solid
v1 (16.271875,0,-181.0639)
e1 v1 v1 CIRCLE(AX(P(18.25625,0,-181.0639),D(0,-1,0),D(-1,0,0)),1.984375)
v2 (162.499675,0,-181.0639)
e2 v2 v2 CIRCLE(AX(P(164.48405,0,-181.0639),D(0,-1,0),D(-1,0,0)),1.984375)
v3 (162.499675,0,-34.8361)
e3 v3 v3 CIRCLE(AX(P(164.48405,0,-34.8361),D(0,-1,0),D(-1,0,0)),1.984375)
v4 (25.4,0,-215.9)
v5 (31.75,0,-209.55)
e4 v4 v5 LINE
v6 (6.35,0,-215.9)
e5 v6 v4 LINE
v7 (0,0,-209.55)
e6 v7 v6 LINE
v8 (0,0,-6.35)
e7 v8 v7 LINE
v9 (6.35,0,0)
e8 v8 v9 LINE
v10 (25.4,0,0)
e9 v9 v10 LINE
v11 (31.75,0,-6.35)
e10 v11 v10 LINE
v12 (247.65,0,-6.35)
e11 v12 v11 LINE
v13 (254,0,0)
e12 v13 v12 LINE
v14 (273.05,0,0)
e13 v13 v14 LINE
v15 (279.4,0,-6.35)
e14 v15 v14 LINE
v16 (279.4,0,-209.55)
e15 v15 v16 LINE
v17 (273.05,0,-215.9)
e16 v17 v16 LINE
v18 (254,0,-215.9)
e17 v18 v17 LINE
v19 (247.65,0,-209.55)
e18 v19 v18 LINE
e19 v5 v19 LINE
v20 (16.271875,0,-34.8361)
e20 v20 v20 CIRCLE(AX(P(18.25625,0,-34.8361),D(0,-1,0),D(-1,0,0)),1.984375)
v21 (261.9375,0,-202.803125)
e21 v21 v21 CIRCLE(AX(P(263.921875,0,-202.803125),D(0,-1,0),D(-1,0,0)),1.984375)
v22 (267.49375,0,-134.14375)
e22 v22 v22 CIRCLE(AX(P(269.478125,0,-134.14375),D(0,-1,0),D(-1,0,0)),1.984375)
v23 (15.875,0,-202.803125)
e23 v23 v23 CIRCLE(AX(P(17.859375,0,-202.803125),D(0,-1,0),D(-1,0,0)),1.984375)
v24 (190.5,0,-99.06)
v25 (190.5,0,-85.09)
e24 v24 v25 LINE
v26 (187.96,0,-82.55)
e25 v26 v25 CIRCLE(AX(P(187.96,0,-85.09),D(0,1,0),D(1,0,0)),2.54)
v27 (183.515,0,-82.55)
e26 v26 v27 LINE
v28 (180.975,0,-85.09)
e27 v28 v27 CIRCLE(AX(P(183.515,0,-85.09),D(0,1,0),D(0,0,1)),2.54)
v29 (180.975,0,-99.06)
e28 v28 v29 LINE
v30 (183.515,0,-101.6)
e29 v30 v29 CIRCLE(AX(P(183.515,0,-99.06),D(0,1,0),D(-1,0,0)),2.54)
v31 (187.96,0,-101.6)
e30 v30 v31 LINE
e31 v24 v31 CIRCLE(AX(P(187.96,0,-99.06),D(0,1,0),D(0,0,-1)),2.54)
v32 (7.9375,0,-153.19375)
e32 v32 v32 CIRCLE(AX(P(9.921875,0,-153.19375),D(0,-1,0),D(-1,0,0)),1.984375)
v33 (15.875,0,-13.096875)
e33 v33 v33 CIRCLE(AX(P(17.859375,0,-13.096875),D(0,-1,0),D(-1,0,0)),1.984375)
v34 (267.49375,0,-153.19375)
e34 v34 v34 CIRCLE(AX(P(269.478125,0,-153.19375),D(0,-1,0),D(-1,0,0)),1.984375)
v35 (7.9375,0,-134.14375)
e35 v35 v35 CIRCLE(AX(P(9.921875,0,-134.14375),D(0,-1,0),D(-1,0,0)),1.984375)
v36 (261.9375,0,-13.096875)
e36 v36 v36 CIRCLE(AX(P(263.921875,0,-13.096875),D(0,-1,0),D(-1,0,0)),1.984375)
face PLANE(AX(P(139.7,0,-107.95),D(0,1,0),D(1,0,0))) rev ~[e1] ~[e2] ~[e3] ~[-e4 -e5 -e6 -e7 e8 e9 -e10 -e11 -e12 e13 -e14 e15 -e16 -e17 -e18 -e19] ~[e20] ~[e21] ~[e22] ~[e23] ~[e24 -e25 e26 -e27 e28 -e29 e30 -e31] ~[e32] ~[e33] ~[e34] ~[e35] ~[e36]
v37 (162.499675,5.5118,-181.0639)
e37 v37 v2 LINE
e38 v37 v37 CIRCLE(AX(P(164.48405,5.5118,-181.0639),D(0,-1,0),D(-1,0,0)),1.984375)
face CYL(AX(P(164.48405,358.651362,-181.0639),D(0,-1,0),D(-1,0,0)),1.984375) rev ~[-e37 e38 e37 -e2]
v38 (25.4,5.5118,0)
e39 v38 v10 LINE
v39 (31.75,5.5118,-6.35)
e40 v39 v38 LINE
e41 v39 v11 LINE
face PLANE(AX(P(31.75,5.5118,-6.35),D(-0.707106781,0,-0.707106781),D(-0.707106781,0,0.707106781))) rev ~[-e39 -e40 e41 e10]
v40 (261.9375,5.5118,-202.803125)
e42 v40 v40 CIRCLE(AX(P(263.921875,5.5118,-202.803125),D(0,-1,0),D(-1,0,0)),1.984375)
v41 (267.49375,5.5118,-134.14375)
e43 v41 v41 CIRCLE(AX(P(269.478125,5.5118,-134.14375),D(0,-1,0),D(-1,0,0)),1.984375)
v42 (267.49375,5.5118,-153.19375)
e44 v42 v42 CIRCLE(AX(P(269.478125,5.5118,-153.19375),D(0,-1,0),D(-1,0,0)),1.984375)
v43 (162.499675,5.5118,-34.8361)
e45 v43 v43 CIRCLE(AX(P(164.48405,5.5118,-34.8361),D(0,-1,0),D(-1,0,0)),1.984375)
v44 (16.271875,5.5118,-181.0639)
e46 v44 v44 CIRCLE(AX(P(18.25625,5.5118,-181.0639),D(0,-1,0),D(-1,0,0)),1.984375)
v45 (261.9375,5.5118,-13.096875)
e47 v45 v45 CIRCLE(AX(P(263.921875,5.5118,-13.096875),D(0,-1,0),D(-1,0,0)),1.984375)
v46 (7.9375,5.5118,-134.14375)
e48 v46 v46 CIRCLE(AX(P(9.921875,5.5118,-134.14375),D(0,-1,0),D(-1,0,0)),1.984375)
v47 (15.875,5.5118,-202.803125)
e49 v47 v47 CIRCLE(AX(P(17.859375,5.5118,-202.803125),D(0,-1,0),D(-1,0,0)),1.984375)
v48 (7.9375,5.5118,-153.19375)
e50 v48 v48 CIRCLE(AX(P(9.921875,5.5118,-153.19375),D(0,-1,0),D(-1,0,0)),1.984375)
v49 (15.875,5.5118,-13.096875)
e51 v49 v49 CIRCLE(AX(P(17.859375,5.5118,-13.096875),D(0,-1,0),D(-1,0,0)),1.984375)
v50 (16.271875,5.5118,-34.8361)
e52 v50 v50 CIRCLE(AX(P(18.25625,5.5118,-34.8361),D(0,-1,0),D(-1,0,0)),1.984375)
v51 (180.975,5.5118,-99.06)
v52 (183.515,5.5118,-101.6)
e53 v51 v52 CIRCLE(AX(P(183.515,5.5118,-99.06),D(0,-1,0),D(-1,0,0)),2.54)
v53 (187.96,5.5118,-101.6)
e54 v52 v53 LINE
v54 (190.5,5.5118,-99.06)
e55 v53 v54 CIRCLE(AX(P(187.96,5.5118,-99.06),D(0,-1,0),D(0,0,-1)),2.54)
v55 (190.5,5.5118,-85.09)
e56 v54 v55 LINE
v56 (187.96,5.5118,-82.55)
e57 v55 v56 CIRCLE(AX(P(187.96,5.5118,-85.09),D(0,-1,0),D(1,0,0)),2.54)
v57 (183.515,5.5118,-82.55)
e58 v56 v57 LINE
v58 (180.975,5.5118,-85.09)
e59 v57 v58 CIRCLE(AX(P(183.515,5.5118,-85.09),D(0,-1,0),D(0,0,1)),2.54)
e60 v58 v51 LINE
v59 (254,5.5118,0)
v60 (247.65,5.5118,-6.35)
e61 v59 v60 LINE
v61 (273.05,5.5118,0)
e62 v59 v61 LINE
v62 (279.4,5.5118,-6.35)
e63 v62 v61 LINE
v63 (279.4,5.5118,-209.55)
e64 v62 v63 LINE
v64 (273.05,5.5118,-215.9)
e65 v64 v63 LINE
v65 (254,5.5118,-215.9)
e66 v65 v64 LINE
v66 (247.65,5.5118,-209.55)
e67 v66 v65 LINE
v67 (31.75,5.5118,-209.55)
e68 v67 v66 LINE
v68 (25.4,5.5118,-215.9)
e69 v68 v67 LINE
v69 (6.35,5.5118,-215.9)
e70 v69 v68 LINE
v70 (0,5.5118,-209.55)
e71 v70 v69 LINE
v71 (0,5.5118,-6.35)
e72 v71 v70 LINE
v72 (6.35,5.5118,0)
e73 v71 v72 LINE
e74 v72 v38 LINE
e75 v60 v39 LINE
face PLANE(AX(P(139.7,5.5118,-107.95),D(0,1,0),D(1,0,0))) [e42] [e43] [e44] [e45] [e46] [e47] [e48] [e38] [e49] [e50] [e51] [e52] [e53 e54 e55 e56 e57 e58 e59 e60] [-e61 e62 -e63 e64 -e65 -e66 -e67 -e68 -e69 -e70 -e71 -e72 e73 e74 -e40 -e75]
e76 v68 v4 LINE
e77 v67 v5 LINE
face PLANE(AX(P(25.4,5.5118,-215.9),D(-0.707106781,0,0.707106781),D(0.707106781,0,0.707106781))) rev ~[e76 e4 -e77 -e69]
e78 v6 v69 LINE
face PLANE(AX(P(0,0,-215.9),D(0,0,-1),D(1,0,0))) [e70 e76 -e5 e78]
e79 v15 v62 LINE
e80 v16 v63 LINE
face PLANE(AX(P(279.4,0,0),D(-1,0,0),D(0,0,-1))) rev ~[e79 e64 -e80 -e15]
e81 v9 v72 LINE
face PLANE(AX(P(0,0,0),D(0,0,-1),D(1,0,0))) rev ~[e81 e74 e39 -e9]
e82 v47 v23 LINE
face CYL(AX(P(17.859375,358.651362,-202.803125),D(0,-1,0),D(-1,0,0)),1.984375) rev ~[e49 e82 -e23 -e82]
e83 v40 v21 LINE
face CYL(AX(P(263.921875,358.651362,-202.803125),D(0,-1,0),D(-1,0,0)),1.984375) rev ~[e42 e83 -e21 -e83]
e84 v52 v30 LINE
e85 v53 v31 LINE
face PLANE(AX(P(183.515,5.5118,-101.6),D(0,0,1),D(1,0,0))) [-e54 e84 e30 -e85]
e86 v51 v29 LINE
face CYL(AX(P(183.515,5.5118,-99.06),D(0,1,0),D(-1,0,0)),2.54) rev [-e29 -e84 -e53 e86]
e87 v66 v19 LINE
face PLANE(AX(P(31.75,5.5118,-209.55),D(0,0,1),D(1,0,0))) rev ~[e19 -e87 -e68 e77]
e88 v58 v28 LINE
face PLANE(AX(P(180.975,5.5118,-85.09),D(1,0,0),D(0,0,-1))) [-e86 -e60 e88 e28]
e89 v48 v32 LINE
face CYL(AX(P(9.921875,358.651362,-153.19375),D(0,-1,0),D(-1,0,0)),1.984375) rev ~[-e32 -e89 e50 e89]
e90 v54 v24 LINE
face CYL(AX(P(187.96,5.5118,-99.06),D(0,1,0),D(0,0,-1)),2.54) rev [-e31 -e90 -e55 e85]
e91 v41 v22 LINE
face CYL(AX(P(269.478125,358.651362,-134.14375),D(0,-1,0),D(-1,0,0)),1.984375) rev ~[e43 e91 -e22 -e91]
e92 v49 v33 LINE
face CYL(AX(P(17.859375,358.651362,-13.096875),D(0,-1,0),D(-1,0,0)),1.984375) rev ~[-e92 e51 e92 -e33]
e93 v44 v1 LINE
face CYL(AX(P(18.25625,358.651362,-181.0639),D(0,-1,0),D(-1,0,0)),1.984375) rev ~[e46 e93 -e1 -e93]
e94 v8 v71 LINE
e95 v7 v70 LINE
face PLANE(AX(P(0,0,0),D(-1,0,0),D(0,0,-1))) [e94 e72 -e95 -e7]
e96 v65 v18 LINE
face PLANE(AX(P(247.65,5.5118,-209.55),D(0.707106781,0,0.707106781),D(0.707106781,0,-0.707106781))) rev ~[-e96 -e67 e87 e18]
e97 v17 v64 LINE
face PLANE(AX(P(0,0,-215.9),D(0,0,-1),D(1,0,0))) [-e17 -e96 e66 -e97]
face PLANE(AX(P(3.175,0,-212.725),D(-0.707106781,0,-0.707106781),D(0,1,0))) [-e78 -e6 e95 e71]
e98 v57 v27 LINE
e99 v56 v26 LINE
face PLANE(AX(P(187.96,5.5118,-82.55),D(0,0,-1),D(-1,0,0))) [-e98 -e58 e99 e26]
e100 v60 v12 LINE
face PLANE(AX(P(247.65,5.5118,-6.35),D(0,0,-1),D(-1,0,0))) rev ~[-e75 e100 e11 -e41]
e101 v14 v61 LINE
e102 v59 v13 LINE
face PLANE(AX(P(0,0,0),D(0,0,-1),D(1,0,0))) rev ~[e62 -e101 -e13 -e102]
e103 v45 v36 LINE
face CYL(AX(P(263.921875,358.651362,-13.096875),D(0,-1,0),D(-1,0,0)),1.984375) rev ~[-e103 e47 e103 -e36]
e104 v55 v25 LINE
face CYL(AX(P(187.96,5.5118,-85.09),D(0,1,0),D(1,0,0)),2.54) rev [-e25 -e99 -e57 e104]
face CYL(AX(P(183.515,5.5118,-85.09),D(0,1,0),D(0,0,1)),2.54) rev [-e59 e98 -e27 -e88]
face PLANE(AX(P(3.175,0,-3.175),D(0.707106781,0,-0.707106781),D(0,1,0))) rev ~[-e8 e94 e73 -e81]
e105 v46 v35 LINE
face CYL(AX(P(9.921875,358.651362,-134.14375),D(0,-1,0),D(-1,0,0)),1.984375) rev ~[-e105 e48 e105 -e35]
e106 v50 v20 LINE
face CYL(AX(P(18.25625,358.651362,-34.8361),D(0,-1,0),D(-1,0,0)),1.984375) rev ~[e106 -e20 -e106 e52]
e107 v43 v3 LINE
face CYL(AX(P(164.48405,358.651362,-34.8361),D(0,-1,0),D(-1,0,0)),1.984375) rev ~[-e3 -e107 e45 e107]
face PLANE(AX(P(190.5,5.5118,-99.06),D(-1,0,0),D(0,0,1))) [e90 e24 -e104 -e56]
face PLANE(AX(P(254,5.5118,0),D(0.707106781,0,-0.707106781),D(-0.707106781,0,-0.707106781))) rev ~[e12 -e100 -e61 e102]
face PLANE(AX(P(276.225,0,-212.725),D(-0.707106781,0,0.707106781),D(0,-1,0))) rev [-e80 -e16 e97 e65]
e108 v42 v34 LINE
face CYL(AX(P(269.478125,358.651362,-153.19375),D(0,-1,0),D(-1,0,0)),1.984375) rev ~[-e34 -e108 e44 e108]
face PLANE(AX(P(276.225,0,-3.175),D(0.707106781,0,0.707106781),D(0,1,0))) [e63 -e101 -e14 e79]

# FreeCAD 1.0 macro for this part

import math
import FreeCAD as App
import Part
import Sketcher
from FreeCAD import Vector
Q = App.Units.Quantity


def edges_at(feature, points):
    """Names of the edges that pass closest to the given points."""
    edges = feature.Shape.Edges
    near = lambda p: min(range(len(edges)), key=lambda i: edges[i].distToShape(Part.Vertex(*p))[0])
    return sorted({f"Edge{near(p) + 1}" for p in points})

doc = App.newDocument("Part")
body = doc.addObject("PartDesign::Body", "Body")

sketch1 = body.newObject("Sketcher::SketchObject", "Sketch")
sketch1.AttachmentSupport = (doc.getObject("XZ_Plane"), [""])
sketch1.MapMode = "FlatFace"
sketch1.addGeometry([
    Part.LineSegment(Vector(0, -215.9, 0), Vector(0, 0, 0)),
    Part.LineSegment(Vector(0, 0, 0), Vector(279.4, 0, 0)),
    Part.LineSegment(Vector(279.4, 0, 0), Vector(279.4, -215.9, 0)),
    Part.LineSegment(Vector(279.4, -215.9, 0), Vector(0, -215.9, 0)),
], False)
sketch1.addConstraint([
    Sketcher.Constraint("Coincident", 0, 2, 1, 1),
    Sketcher.Constraint("Coincident", 1, 2, 2, 1),
    Sketcher.Constraint("Coincident", 2, 2, 3, 1),
    Sketcher.Constraint("Coincident", 3, 2, 0, 1),
    Sketcher.Constraint("Vertical", 0),
    Sketcher.Constraint("Horizontal", 1),
    Sketcher.Constraint("Vertical", 2),
    Sketcher.Constraint("Horizontal", 3),
    Sketcher.Constraint("Coincident", 0, 2, -1, 1),
    Sketcher.Constraint("DistanceX", 1, 1, 1, 2, Q("11 in")),
    Sketcher.Constraint("DistanceY", 0, 1, 0, 2, Q("8.5 in")),
])
pad1 = body.newObject("PartDesign::Pad", "Pad")
pad1.Profile = sketch1
pad1.Length = Q("0.217 in")
pad1.Reversed = True

sketch2 = body.newObject("Sketcher::SketchObject", "Sketch001")
sketch2.AttachmentSupport = (doc.getObject("XZ_Plane"), [""])
sketch2.MapMode = "FlatFace"
sketch2.AttachmentOffset = App.Placement(Vector(0, 0, -0.217 * 25.4), App.Rotation())
sketch2.addGeometry([
    Part.Circle(Vector(17.859375, -13.096875, 0), Vector(0, 0, 1), 1.984375),
    Part.Circle(Vector(17.859375, -202.803125, 0), Vector(0, 0, 1), 1.984375),
    Part.Circle(Vector(9.921875, -153.19375, 0), Vector(0, 0, 1), 1.984375),
    Part.Circle(Vector(9.921875, -134.14375, 0), Vector(0, 0, 1), 1.984375),
    Part.Circle(Vector(263.921875, -13.096875, 0), Vector(0, 0, 1), 1.984375),
    Part.Circle(Vector(269.478125, -134.14375, 0), Vector(0, 0, 1), 1.984375),
    Part.Circle(Vector(269.478125, -153.19375, 0), Vector(0, 0, 1), 1.984375),
    Part.Circle(Vector(263.921875, -202.803125, 0), Vector(0, 0, 1), 1.984375),
], False)
sketch2.addConstraint([
    Sketcher.Constraint("Equal", 0, 1),
    Sketcher.Constraint("Equal", 1, 2),
    Sketcher.Constraint("Equal", 2, 3),
    Sketcher.Constraint("Equal", 3, 4),
    Sketcher.Constraint("Equal", 4, 5),
    Sketcher.Constraint("Equal", 5, 6),
    Sketcher.Constraint("Equal", 6, 7),
    Sketcher.Constraint("Horizontal", 0, 3, 4, 3),
    Sketcher.Constraint("Horizontal", 3, 3, 5, 3),
    Sketcher.Constraint("Horizontal", 2, 3, 6, 3),
    Sketcher.Constraint("Horizontal", 1, 3, 7, 3),
    Sketcher.Constraint("Vertical", 0, 3, 1, 3),
    Sketcher.Constraint("Vertical", 2, 3, 3, 3),
    Sketcher.Constraint("Vertical", 5, 3, 6, 3),
    Sketcher.Constraint("Vertical", 4, 3, 7, 3),
    Sketcher.Constraint("Diameter", 0, Q("0.15625 in")),
    Sketcher.Constraint("DistanceX", 3, 3, 4, 3, Q("10 in")),
    Sketcher.Constraint("DistanceY", 2, 3, 3, 3, Q("0.75 in")),
    Sketcher.Constraint("DistanceX", -1, 1, 0, 3, Q("0.703125 in")),
    Sketcher.Constraint("DistanceY", 0, 3, -1, 1, Q("0.515625 in")),
    Sketcher.Constraint("DistanceY", 1, 3, -1, 1, Q("7.984375 in")),
    Sketcher.Constraint("DistanceX", -1, 1, 2, 3, Q("0.390625 in")),
    Sketcher.Constraint("DistanceY", 2, 3, -1, 1, Q("6.03125 in")),
    Sketcher.Constraint("DistanceX", -1, 1, 5, 3, Q("10.609375 in")),
])
doc.recompute()
hole = body.newObject("PartDesign::Hole", "Hole")
hole.Profile = sketch2
hole.ThreadType = "None"
hole.Diameter = Q("0.15625 in")
hole.DepthType = "ThroughAll"
hole.Reversed = True

sketch3 = body.newObject("Sketcher::SketchObject", "Sketch002")
sketch3.AttachmentSupport = (doc.getObject("XZ_Plane"), [""])
sketch3.MapMode = "FlatFace"
sketch3.AttachmentOffset = App.Placement(Vector(0, 0, -0.217 * 25.4), App.Rotation())
sketch3.addGeometry([
    Part.Circle(Vector(18.25625, -34.8361, 0), Vector(0, 0, 1), 1.984375),
    Part.Circle(Vector(164.48405, -34.8361, 0), Vector(0, 0, 1), 1.984375),
    Part.Circle(Vector(164.48405, -181.0639, 0), Vector(0, 0, 1), 1.984375),
    Part.Circle(Vector(18.25625, -181.0639, 0), Vector(0, 0, 1), 1.984375),
], False)
sketch3.addConstraint([
    Sketcher.Constraint("Equal", 0, 1),
    Sketcher.Constraint("Equal", 1, 2),
    Sketcher.Constraint("Equal", 2, 3),
    Sketcher.Constraint("Horizontal", 0, 3, 1, 3),
    Sketcher.Constraint("Horizontal", 2, 3, 3, 3),
    Sketcher.Constraint("Vertical", 1, 3, 2, 3),
    Sketcher.Constraint("Vertical", 0, 3, 3, 3),
    Sketcher.Constraint("Diameter", 0, Q("0.15625 in")),
    Sketcher.Constraint("DistanceX", -1, 1, 0, 3, Q("0.71875 in")),
    Sketcher.Constraint("DistanceX", 0, 3, 1, 3, Q("5.757 in")),
    Sketcher.Constraint("DistanceY", 2, 3, 1, 3, Q("5.757 in")),
    Sketcher.Constraint("DistanceY", 0, 3, -1, 1, Q("1.3715 in")),
])
doc.recompute()
hole2 = body.newObject("PartDesign::Hole", "Hole001")
hole2.Profile = sketch3
hole2.ThreadType = "None"
hole2.Diameter = Q("0.15625 in")
hole2.DepthType = "ThroughAll"
hole2.Reversed = True

sketch4 = body.newObject("Sketcher::SketchObject", "Sketch003")
sketch4.AttachmentSupport = (doc.getObject("XZ_Plane"), [""])
sketch4.MapMode = "FlatFace"
sketch4.AttachmentOffset = App.Placement(Vector(0, 0, -0.217 * 25.4), App.Rotation())
sketch4.addGeometry([
    Part.LineSegment(Vector(247.65, -209.55, 0), Vector(254, -215.9, 0)),
    Part.LineSegment(Vector(254, -215.9, 0), Vector(25.4, -215.9, 0)),
    Part.LineSegment(Vector(25.4, -215.9, 0), Vector(31.75, -209.55, 0)),
    Part.LineSegment(Vector(31.75, -209.55, 0), Vector(247.65, -209.55, 0)),
    Part.LineSegment(Vector(25.4, 0, 0), Vector(254, 0, 0)),
    Part.LineSegment(Vector(254, 0, 0), Vector(247.65, -6.35, 0)),
    Part.LineSegment(Vector(247.65, -6.35, 0), Vector(31.75, -6.35, 0)),
    Part.LineSegment(Vector(31.75, -6.35, 0), Vector(25.4, 0, 0)),
], False)
sketch4.addConstraint([
    Sketcher.Constraint("Coincident", 0, 2, 1, 1),
    Sketcher.Constraint("Coincident", 1, 2, 2, 1),
    Sketcher.Constraint("Coincident", 2, 2, 3, 1),
    Sketcher.Constraint("Coincident", 3, 2, 0, 1),
    Sketcher.Constraint("Coincident", 4, 2, 5, 1),
    Sketcher.Constraint("Coincident", 5, 2, 6, 1),
    Sketcher.Constraint("Coincident", 6, 2, 7, 1),
    Sketcher.Constraint("Coincident", 7, 2, 4, 1),
    Sketcher.Constraint("Horizontal", 1),
    Sketcher.Constraint("Horizontal", 3),
    Sketcher.Constraint("Horizontal", 4),
    Sketcher.Constraint("Horizontal", 6),
    Sketcher.Constraint("PointOnObject", 4, 2, -1),
    Sketcher.Constraint("Perpendicular", 0, 2),
    Sketcher.Constraint("Parallel", 2, 5),
    Sketcher.Constraint("Perpendicular", 5, 7),
    Sketcher.Constraint("Vertical", 0, 2, 4, 2),
    Sketcher.Constraint("Vertical", 3, 2, 5, 2),
    Sketcher.Constraint("Vertical", 2, 2, 6, 2),
    Sketcher.Constraint("Vertical", 1, 2, 7, 2),
    Sketcher.Constraint("DistanceX", 1, 2, 1, 1, Q("9 in")),
    Sketcher.Constraint("DistanceX", 3, 1, 3, 2, Q("8.5 in")),
    Sketcher.Constraint("DistanceX", -1, 1, 0, 2, Q("10 in")),
    Sketcher.Constraint("DistanceY", 3, 2, 5, 2, Q("8 in")),
])
pocket1 = body.newObject("PartDesign::Pocket", "Pocket")
pocket1.Profile = sketch4
pocket1.Type = "ThroughAll"
pocket1.Reversed = True
doc.recompute()

chamfer = body.newObject("PartDesign::Chamfer", "Chamfer")
chamfer.Base = (pocket1, edges_at(pocket1, [
    (0, 2.756, -215.9),
    (279.4, 2.756, -215.9),
    (279.4, 2.756, 0),
    (0, 2.756, 0),
]))
chamfer.Size = Q("0.25 in")

sketch5 = body.newObject("Sketcher::SketchObject", "Sketch004")
sketch5.AttachmentSupport = (doc.getObject("XZ_Plane"), [""])
sketch5.MapMode = "FlatFace"
sketch5.AttachmentOffset = App.Placement(Vector(0, 0, -0.217 * 25.4), App.Rotation())
sketch5.addGeometry([
    Part.LineSegment(Vector(187.96, -101.6, 0), Vector(183.515, -101.6, 0)),
    Part.ArcOfCircle(Part.Circle(Vector(183.515, -99.06, 0), Vector(0, 0, 1), 2.54), math.radians(-180), math.radians(-90)),
    Part.LineSegment(Vector(180.975, -99.06, 0), Vector(180.975, -85.09, 0)),
    Part.ArcOfCircle(Part.Circle(Vector(183.515, -85.09, 0), Vector(0, 0, 1), 2.54), math.radians(90), math.radians(180)),
    Part.LineSegment(Vector(183.515, -82.55, 0), Vector(187.96, -82.55, 0)),
    Part.ArcOfCircle(Part.Circle(Vector(187.96, -85.09, 0), Vector(0, 0, 1), 2.54), math.radians(0), math.radians(90)),
    Part.LineSegment(Vector(190.5, -85.09, 0), Vector(190.5, -99.06, 0)),
    Part.ArcOfCircle(Part.Circle(Vector(187.96, -99.06, 0), Vector(0, 0, 1), 2.54), math.radians(-90), math.radians(0)),
], False)
sketch5.addConstraint([
    Sketcher.Constraint("Tangent", 0, 2, 1, 2),
    Sketcher.Constraint("Tangent", 1, 1, 2, 1),
    Sketcher.Constraint("Tangent", 2, 2, 3, 2),
    Sketcher.Constraint("Tangent", 3, 1, 4, 1),
    Sketcher.Constraint("Tangent", 4, 2, 5, 2),
    Sketcher.Constraint("Tangent", 5, 1, 6, 1),
    Sketcher.Constraint("Tangent", 6, 2, 7, 2),
    Sketcher.Constraint("Tangent", 7, 1, 0, 1),
    Sketcher.Constraint("Horizontal", 0),
    Sketcher.Constraint("Vertical", 2),
    Sketcher.Constraint("Horizontal", 4),
    Sketcher.Constraint("Vertical", 6),
    Sketcher.Constraint("Equal", 1, 3),
    Sketcher.Constraint("Equal", 3, 5),
    Sketcher.Constraint("Equal", 5, 7),
    Sketcher.Constraint("Radius", 1, Q("0.1 in")),
    Sketcher.Constraint("DistanceY", 0, 2, -1, 1, Q("4 in")),
    Sketcher.Constraint("DistanceY", 2, 1, 2, 2, Q("0.55 in")),
    Sketcher.Constraint("DistanceX", -1, 1, 5, 3, Q("7.4 in")),
    Sketcher.Constraint("DistanceX", 0, 2, 0, 1, Q("0.175 in")),
])
pocket2 = body.newObject("PartDesign::Pocket", "Pocket001")
pocket2.Profile = sketch5
pocket2.Type = "ThroughAll"
pocket2.Reversed = True

doc.recompute()
